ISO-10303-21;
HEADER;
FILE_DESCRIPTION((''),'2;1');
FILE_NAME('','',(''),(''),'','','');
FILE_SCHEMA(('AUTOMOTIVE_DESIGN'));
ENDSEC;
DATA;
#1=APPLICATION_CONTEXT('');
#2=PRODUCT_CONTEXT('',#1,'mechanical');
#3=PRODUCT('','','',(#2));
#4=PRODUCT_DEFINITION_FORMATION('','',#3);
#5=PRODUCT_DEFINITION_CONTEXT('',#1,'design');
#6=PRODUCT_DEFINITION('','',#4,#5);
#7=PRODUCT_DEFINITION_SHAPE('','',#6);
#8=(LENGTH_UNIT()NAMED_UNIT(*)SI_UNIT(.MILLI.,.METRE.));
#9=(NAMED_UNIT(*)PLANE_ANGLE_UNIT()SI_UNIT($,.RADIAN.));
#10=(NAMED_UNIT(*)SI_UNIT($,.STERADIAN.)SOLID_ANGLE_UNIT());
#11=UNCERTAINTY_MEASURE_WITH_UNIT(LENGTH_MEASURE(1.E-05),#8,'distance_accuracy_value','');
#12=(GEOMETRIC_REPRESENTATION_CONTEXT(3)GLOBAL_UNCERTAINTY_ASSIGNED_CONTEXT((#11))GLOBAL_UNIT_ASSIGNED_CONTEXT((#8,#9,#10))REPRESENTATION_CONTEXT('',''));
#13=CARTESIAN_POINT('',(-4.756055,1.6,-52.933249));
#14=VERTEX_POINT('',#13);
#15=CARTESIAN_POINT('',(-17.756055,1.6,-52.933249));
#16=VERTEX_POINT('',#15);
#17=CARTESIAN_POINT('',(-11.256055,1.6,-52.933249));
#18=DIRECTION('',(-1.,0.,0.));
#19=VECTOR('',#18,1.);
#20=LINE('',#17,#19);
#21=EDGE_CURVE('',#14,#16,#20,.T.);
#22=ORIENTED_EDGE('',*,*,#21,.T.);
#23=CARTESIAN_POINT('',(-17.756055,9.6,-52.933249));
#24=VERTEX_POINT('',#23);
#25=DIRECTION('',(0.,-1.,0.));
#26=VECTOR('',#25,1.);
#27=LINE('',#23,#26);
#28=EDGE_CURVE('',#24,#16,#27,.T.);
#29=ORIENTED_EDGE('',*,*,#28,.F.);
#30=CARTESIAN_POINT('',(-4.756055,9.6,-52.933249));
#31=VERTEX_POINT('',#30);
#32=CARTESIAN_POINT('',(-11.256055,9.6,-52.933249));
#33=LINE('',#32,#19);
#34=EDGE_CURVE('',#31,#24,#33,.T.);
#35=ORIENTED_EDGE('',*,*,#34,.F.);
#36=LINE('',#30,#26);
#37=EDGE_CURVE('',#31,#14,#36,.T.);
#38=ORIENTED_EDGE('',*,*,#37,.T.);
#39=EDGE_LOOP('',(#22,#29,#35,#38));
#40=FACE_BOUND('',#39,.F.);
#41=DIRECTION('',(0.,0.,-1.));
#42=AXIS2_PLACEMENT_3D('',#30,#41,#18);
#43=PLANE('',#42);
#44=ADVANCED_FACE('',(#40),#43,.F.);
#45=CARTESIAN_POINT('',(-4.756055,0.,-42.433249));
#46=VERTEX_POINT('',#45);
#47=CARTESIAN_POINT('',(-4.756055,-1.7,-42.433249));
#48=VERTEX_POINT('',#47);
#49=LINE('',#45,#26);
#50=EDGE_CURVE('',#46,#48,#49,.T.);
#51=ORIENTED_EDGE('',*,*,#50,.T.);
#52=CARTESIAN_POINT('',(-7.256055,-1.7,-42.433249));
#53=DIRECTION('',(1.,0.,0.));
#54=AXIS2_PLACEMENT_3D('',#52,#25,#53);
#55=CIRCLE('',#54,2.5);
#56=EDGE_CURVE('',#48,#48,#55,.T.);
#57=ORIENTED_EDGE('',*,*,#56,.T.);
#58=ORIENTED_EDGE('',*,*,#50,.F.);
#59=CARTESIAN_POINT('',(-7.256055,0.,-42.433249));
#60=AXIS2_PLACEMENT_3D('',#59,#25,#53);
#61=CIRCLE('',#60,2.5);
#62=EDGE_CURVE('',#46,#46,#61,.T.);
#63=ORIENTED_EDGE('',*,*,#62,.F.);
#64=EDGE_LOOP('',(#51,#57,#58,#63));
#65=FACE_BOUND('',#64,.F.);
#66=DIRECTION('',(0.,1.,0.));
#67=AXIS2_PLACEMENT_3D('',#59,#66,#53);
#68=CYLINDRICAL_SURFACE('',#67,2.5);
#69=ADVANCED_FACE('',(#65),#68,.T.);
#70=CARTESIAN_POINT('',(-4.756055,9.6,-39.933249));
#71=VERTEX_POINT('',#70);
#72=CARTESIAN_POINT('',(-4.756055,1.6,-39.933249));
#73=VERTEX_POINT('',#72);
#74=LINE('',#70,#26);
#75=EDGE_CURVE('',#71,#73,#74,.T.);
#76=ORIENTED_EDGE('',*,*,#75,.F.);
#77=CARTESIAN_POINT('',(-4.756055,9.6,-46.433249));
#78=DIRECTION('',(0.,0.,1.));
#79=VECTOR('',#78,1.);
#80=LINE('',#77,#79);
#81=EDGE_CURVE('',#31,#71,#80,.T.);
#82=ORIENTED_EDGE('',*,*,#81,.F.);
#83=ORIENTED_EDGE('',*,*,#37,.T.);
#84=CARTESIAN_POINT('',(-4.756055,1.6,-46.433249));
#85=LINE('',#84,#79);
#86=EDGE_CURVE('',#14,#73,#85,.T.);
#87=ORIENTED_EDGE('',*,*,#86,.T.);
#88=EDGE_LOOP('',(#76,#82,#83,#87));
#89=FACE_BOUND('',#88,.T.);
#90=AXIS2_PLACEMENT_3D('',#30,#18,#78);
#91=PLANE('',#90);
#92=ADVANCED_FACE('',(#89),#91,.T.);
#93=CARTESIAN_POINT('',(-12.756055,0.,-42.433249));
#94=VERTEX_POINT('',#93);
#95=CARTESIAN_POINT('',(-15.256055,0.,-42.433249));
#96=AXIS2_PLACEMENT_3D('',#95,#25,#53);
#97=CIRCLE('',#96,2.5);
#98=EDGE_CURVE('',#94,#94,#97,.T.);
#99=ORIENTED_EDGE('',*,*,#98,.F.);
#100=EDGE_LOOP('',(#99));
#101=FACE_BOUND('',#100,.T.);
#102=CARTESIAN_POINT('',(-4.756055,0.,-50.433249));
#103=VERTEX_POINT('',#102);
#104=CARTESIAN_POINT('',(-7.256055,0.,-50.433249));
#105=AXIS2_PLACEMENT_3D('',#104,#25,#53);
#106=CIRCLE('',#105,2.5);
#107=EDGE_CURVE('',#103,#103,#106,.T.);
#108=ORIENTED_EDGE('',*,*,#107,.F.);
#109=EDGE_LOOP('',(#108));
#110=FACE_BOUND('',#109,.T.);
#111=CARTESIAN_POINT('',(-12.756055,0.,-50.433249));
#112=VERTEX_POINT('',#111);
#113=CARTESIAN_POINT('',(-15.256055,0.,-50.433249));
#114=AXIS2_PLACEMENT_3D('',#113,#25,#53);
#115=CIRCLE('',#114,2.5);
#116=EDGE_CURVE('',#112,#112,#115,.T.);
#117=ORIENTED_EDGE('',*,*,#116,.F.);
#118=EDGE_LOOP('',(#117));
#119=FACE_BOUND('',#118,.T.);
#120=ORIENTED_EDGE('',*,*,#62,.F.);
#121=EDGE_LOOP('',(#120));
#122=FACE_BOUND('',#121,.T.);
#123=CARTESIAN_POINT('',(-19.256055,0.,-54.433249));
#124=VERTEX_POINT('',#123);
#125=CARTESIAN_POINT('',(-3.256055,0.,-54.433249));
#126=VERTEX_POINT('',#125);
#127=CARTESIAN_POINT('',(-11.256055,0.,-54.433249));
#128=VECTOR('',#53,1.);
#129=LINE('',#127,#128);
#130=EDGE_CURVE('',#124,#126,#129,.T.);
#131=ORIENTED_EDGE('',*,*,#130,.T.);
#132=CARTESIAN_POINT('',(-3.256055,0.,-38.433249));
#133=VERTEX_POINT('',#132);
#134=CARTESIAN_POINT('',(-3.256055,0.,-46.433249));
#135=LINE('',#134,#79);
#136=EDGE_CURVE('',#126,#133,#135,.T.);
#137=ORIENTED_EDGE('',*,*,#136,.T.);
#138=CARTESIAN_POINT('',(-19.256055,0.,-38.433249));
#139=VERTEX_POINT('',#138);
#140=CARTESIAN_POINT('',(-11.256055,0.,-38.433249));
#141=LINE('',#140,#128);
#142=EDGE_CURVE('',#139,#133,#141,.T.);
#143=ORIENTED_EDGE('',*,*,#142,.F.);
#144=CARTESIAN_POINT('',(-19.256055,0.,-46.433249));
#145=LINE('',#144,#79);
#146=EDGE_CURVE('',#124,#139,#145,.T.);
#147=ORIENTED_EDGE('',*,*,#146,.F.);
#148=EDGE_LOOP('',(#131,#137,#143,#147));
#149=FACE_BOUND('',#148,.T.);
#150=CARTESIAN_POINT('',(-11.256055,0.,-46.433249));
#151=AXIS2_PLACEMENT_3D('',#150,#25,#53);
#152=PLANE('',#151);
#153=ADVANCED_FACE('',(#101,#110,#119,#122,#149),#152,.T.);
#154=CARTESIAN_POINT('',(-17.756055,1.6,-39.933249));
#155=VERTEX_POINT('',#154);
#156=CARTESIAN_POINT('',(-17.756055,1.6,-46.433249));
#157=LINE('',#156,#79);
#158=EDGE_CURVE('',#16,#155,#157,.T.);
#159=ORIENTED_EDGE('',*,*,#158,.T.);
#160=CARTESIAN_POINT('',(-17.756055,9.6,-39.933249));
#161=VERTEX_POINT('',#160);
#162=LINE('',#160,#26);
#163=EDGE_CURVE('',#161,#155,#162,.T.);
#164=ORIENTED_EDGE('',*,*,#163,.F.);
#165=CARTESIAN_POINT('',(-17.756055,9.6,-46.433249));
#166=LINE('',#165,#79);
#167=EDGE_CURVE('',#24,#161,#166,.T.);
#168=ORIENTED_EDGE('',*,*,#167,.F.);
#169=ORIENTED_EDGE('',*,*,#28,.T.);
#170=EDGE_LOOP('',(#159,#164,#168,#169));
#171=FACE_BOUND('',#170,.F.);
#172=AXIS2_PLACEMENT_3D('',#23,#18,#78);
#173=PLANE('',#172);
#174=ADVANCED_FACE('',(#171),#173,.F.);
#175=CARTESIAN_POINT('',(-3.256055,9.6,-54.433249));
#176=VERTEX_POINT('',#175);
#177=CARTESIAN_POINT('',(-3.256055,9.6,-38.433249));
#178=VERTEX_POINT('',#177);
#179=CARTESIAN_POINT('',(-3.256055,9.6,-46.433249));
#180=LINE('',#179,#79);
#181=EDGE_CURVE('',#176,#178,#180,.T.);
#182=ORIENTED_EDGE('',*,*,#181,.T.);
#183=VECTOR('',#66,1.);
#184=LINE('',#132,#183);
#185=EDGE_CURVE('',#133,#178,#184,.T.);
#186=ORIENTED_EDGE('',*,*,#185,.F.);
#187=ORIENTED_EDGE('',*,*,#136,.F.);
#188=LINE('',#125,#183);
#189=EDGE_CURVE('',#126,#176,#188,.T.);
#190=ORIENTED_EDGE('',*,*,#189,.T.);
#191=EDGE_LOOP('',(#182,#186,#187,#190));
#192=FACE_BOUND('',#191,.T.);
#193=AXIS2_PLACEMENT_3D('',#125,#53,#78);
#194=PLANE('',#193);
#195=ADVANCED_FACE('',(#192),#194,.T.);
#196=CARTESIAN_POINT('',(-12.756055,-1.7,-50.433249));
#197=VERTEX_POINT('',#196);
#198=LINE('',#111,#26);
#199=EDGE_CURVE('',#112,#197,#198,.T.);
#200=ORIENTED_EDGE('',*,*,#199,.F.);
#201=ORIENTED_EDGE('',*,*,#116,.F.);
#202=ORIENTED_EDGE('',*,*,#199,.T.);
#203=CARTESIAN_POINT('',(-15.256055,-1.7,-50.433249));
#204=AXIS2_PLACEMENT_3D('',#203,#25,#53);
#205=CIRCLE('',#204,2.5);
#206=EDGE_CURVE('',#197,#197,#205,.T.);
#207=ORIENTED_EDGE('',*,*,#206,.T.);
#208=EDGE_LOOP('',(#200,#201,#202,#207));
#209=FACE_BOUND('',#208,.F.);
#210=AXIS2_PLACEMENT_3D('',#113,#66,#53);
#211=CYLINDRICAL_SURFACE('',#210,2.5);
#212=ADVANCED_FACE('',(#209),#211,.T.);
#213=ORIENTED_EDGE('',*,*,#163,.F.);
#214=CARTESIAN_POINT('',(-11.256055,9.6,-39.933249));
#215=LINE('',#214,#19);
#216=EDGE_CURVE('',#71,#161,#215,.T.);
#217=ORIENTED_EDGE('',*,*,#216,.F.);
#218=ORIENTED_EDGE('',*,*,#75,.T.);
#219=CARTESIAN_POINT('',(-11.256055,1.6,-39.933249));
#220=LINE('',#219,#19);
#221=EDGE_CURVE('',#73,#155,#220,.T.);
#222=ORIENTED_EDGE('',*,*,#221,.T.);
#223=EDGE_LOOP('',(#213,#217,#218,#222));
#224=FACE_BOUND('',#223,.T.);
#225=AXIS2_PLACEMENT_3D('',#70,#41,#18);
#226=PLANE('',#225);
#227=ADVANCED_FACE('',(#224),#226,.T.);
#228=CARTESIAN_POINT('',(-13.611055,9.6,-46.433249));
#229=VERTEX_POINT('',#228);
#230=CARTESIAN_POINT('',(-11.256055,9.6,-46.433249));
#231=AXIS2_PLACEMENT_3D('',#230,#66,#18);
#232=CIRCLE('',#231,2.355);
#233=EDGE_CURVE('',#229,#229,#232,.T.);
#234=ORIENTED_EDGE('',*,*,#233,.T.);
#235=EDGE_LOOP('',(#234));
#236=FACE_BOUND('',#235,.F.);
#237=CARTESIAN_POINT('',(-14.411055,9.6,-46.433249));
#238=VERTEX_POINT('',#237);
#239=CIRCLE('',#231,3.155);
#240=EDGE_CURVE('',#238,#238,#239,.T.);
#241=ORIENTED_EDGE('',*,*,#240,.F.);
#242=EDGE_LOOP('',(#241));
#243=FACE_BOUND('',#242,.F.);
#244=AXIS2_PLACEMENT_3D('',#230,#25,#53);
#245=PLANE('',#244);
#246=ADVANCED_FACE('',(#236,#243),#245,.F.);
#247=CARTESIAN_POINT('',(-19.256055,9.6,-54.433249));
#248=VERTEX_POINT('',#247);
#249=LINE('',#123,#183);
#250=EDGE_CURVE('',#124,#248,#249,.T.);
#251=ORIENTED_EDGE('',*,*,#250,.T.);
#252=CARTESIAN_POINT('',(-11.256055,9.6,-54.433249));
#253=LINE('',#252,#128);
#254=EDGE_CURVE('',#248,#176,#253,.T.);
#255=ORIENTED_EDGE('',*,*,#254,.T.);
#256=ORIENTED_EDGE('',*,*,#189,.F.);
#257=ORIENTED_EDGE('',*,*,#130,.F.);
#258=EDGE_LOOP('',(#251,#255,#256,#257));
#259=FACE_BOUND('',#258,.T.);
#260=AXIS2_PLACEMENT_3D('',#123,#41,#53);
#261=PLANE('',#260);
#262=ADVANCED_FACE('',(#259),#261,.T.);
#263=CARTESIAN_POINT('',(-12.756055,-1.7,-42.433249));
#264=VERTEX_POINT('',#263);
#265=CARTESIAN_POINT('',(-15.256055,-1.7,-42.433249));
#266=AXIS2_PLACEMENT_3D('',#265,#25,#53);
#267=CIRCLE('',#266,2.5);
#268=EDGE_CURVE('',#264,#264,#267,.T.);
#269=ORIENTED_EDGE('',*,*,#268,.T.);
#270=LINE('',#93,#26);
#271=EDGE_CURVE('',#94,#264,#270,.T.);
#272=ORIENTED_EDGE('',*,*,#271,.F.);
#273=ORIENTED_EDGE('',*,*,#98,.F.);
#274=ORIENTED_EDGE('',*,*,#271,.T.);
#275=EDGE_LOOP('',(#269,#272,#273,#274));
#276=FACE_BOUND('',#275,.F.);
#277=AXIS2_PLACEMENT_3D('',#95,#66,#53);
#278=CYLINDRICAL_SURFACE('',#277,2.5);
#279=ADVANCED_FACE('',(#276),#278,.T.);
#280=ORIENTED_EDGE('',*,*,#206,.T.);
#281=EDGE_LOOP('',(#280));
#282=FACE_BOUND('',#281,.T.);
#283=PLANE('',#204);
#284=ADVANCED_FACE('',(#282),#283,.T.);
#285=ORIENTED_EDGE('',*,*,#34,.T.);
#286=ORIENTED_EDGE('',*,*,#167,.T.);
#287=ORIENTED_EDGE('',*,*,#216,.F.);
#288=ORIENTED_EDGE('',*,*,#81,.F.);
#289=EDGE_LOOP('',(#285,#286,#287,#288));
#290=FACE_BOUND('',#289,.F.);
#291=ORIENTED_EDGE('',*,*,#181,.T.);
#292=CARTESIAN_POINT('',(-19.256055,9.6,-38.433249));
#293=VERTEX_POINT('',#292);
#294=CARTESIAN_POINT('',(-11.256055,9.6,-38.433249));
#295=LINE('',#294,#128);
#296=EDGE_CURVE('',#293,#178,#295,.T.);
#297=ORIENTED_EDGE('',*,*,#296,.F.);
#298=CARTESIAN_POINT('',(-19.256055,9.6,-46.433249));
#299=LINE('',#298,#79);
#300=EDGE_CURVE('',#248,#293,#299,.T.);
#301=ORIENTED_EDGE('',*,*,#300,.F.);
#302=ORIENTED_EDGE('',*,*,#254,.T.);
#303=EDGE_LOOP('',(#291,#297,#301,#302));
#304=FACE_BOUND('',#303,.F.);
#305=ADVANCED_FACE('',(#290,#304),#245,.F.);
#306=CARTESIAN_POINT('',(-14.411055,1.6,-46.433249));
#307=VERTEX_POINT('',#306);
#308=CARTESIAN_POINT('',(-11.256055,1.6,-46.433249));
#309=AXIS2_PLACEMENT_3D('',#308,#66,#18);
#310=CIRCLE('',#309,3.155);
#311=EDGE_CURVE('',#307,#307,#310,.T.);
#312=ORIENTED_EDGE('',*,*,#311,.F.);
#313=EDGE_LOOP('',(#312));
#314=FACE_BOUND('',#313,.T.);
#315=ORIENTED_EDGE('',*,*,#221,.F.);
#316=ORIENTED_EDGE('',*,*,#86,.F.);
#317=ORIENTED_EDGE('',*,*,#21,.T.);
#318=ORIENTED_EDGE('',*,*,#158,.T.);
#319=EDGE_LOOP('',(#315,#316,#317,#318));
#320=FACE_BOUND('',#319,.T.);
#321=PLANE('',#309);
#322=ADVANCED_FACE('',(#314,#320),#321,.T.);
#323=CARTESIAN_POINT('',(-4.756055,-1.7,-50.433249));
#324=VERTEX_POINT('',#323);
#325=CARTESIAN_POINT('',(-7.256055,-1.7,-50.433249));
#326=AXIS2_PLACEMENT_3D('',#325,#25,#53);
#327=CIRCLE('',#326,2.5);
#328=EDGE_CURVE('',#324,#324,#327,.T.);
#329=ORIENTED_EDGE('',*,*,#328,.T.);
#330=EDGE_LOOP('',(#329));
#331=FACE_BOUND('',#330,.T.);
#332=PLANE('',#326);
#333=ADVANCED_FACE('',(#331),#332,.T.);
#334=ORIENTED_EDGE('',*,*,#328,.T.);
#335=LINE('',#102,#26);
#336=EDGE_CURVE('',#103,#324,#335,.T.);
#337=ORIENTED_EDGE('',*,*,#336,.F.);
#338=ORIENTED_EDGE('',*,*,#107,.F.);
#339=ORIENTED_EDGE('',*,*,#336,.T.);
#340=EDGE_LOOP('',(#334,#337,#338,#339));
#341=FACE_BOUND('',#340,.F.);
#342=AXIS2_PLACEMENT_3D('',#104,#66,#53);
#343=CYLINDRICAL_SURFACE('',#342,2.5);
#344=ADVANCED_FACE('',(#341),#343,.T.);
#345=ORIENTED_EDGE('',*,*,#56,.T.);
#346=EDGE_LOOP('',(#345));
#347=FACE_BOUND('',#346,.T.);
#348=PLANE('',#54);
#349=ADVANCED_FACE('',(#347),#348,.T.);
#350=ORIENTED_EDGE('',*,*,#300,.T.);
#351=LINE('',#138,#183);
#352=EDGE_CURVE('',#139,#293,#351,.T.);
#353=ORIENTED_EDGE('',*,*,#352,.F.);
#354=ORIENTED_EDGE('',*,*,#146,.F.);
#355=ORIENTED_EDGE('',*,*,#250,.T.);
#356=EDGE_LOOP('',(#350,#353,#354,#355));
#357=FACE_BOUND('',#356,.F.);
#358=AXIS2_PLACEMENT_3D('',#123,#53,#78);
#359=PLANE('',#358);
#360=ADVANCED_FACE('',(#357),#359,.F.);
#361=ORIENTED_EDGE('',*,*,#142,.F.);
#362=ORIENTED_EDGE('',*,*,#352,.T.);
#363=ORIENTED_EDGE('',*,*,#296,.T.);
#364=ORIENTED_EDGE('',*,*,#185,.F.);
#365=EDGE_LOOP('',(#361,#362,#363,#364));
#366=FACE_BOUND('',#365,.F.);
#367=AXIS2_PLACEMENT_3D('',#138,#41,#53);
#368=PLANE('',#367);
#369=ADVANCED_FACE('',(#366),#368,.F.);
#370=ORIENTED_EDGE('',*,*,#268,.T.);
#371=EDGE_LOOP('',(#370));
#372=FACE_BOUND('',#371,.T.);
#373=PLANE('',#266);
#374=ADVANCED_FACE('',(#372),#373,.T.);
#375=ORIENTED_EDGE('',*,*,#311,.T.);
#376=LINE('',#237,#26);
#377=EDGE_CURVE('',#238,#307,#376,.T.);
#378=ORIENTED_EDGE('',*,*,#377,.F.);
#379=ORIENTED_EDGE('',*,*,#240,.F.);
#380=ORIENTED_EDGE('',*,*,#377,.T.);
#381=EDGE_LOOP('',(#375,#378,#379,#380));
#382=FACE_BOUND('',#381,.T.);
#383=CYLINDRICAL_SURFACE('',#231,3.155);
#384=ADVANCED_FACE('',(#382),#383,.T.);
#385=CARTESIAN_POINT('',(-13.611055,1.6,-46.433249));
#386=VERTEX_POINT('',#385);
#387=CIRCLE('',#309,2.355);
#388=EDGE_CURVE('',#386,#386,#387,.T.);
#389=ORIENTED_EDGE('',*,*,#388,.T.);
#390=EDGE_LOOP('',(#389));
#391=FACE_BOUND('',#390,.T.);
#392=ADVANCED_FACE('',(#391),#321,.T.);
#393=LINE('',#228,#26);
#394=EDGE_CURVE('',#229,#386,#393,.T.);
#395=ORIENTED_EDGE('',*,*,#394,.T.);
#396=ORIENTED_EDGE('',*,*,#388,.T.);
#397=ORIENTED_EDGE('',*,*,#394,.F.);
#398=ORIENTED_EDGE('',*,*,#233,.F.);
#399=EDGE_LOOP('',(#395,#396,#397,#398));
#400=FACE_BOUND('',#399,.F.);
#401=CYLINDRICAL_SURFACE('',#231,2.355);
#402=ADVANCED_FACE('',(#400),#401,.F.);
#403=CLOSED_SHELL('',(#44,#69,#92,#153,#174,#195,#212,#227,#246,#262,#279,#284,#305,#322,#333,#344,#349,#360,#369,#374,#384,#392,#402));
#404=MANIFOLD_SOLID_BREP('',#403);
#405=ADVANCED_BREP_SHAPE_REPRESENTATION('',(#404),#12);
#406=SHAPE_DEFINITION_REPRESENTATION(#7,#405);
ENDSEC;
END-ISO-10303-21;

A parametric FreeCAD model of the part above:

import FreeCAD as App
import Part
import Sketcher
Q = App.Units.Quantity


def add_polygon(sketch, points):
    """Adds a closed chain of lines whose ends are joined by coincident constraints."""
    first, n = sketch.GeometryCount, len(points)
    for a, b in zip(points, points[1:] + points[:1]):
        sketch.addGeometry(Part.LineSegment(App.Vector(*a, 0), App.Vector(*b, 0)), False)
    for i in range(n):
        sketch.addConstraint(Sketcher.Constraint("Coincident", first + i, 2, first + (i + 1) % n, 1))

doc = App.newDocument("Part")
body = doc.addObject("PartDesign::Body", "Body")

# Sketch on XZ plane
sketch1 = body.newObject("Sketcher::SketchObject", "Sketch")
sketch1.AttachmentSupport = (doc.getObject("XZ_Plane"), [""])
sketch1.MapMode = "FlatFace"
add_polygon(sketch1, [(-19, -38), (-19, -54), (-3, -54), (-3, -38)])  # lines 0-3
sketch1.addConstraint(Sketcher.Constraint("Vertical", 0))
sketch1.addConstraint(Sketcher.Constraint("Horizontal", 1))
sketch1.addConstraint(Sketcher.Constraint("Vertical", 2))
sketch1.addConstraint(Sketcher.Constraint("Horizontal", 3))
sketch1.addConstraint(Sketcher.Constraint("Equal", 3, 0))
sketch1.addConstraint(Sketcher.Constraint("DistanceX", 1, 1, 1, 2, Q("16 mm")))
sketch1.addConstraint(Sketcher.Constraint("DistanceY", 0, 2, -1, 1, Q("54.433249 mm")))
sketch1.addConstraint(Sketcher.Constraint("DistanceX", 0, 2, -1, 1, Q("19.256055 mm")))
pad1 = body.newObject("PartDesign::Pad", "Pad")
pad1.Profile = sketch1
pad1.Length = 9.6
pad1.Reversed = True

# Sketch on XZ plane
sketch2 = body.newObject("Sketcher::SketchObject", "Sketch001")
sketch2.AttachmentSupport = (doc.getObject("XZ_Plane"), [""])
sketch2.MapMode = "FlatFace"
sketch2.addGeometry(Part.Circle(App.Vector(-15.3, -42.4, 0), App.Vector(0, 0, 1), 2.5), False)
sketch2.addGeometry(Part.Circle(App.Vector(-15.3, -50.4, 0), App.Vector(0, 0, 1), 2.5), False)
sketch2.addGeometry(Part.Circle(App.Vector(-7.3, -42.4, 0), App.Vector(0, 0, 1), 2.5), False)
sketch2.addGeometry(Part.Circle(App.Vector(-7.3, -50.4, 0), App.Vector(0, 0, 1), 2.5), False)
sketch2.addConstraint(Sketcher.Constraint("Equal", 0, 1))
sketch2.addConstraint(Sketcher.Constraint("Equal", 1, 2))
sketch2.addConstraint(Sketcher.Constraint("Equal", 2, 3))
sketch2.addConstraint(Sketcher.Constraint("Horizontal", 0, 3, 2, 3))
sketch2.addConstraint(Sketcher.Constraint("Horizontal", 1, 3, 3, 3))
sketch2.addConstraint(Sketcher.Constraint("Vertical", 0, 3, 1, 3))
sketch2.addConstraint(Sketcher.Constraint("Vertical", 2, 3, 3, 3))
sketch2.addConstraint(Sketcher.Constraint("Diameter", 0, Q("5 mm")))
sketch2.addConstraint(Sketcher.Constraint("DistanceY", 1, 3, 0, 3, Q("8 mm")))
sketch2.addConstraint(Sketcher.Constraint("DistanceX", 0, 3, 2, 3, Q("8 mm")))
sketch2.addConstraint(Sketcher.Constraint("DistanceY", 0, 3, -1, 1, Q("42.433249 mm")))
sketch2.addConstraint(Sketcher.Constraint("DistanceX", 0, 3, -1, 1, Q("15.256055 mm")))
pad2 = body.newObject("PartDesign::Pad", "Pad001")
pad2.Profile = sketch2
pad2.Length = 1.7

# Sketch on XZ plane
sketch3 = body.newObject("Sketcher::SketchObject", "Sketch002")
sketch3.AttachmentSupport = (doc.getObject("XZ_Plane"), [""])
sketch3.MapMode = "FlatFace"
sketch3.AttachmentOffset = App.Placement(App.Vector(0, 0, -9.6), App.Rotation())
add_polygon(sketch3, [(-4.8, -39.9), (-4.8, -52.9), (-17.8, -52.9), (-17.8, -39.9)])  # lines 0-3
sketch3.addGeometry(Part.Circle(App.Vector(-11.3, -46.4, 0), App.Vector(0, 0, 1), 3.2), False)  # 4
sketch3.addGeometry(Part.Circle(App.Vector(-11.3, -46.4, 0), App.Vector(0, 0, 1), 2.4), False)  # 5
sketch3.addConstraint(Sketcher.Constraint("Vertical", 0))
sketch3.addConstraint(Sketcher.Constraint("Horizontal", 1))
sketch3.addConstraint(Sketcher.Constraint("Vertical", 2))
sketch3.addConstraint(Sketcher.Constraint("Horizontal", 3))
sketch3.addConstraint(Sketcher.Constraint("Coincident", 5, 3, 4, 3))
sketch3.addConstraint(Sketcher.Constraint("Equal", 3, 0))
sketch3.addConstraint(Sketcher.Constraint("Diameter", 4, Q("6.31 mm")))
sketch3.addConstraint(Sketcher.Constraint("Diameter", 5, Q("4.71 mm")))
sketch3.addConstraint(Sketcher.Constraint("DistanceX", 1, 2, 1, 1, Q("13 mm")))
sketch3.addConstraint(Sketcher.Constraint("DistanceX", 4, 3, 0, 2, Q("6.5 mm")))
sketch3.addConstraint(Sketcher.Constraint("DistanceY", 0, 2, 4, 3, Q("6.5 mm")))
sketch3.addConstraint(Sketcher.Constraint("DistanceY", 4, 3, -1, 1, Q("46.433249 mm")))
sketch3.addConstraint(Sketcher.Constraint("DistanceX", 4, 3, -1, 1, Q("11.256055 mm")))
pocket1 = body.newObject("PartDesign::Pocket", "Pocket")
pocket1.Profile = sketch3
pocket1.Length = 8
pocket1.Reversed = True

doc.recompute()
